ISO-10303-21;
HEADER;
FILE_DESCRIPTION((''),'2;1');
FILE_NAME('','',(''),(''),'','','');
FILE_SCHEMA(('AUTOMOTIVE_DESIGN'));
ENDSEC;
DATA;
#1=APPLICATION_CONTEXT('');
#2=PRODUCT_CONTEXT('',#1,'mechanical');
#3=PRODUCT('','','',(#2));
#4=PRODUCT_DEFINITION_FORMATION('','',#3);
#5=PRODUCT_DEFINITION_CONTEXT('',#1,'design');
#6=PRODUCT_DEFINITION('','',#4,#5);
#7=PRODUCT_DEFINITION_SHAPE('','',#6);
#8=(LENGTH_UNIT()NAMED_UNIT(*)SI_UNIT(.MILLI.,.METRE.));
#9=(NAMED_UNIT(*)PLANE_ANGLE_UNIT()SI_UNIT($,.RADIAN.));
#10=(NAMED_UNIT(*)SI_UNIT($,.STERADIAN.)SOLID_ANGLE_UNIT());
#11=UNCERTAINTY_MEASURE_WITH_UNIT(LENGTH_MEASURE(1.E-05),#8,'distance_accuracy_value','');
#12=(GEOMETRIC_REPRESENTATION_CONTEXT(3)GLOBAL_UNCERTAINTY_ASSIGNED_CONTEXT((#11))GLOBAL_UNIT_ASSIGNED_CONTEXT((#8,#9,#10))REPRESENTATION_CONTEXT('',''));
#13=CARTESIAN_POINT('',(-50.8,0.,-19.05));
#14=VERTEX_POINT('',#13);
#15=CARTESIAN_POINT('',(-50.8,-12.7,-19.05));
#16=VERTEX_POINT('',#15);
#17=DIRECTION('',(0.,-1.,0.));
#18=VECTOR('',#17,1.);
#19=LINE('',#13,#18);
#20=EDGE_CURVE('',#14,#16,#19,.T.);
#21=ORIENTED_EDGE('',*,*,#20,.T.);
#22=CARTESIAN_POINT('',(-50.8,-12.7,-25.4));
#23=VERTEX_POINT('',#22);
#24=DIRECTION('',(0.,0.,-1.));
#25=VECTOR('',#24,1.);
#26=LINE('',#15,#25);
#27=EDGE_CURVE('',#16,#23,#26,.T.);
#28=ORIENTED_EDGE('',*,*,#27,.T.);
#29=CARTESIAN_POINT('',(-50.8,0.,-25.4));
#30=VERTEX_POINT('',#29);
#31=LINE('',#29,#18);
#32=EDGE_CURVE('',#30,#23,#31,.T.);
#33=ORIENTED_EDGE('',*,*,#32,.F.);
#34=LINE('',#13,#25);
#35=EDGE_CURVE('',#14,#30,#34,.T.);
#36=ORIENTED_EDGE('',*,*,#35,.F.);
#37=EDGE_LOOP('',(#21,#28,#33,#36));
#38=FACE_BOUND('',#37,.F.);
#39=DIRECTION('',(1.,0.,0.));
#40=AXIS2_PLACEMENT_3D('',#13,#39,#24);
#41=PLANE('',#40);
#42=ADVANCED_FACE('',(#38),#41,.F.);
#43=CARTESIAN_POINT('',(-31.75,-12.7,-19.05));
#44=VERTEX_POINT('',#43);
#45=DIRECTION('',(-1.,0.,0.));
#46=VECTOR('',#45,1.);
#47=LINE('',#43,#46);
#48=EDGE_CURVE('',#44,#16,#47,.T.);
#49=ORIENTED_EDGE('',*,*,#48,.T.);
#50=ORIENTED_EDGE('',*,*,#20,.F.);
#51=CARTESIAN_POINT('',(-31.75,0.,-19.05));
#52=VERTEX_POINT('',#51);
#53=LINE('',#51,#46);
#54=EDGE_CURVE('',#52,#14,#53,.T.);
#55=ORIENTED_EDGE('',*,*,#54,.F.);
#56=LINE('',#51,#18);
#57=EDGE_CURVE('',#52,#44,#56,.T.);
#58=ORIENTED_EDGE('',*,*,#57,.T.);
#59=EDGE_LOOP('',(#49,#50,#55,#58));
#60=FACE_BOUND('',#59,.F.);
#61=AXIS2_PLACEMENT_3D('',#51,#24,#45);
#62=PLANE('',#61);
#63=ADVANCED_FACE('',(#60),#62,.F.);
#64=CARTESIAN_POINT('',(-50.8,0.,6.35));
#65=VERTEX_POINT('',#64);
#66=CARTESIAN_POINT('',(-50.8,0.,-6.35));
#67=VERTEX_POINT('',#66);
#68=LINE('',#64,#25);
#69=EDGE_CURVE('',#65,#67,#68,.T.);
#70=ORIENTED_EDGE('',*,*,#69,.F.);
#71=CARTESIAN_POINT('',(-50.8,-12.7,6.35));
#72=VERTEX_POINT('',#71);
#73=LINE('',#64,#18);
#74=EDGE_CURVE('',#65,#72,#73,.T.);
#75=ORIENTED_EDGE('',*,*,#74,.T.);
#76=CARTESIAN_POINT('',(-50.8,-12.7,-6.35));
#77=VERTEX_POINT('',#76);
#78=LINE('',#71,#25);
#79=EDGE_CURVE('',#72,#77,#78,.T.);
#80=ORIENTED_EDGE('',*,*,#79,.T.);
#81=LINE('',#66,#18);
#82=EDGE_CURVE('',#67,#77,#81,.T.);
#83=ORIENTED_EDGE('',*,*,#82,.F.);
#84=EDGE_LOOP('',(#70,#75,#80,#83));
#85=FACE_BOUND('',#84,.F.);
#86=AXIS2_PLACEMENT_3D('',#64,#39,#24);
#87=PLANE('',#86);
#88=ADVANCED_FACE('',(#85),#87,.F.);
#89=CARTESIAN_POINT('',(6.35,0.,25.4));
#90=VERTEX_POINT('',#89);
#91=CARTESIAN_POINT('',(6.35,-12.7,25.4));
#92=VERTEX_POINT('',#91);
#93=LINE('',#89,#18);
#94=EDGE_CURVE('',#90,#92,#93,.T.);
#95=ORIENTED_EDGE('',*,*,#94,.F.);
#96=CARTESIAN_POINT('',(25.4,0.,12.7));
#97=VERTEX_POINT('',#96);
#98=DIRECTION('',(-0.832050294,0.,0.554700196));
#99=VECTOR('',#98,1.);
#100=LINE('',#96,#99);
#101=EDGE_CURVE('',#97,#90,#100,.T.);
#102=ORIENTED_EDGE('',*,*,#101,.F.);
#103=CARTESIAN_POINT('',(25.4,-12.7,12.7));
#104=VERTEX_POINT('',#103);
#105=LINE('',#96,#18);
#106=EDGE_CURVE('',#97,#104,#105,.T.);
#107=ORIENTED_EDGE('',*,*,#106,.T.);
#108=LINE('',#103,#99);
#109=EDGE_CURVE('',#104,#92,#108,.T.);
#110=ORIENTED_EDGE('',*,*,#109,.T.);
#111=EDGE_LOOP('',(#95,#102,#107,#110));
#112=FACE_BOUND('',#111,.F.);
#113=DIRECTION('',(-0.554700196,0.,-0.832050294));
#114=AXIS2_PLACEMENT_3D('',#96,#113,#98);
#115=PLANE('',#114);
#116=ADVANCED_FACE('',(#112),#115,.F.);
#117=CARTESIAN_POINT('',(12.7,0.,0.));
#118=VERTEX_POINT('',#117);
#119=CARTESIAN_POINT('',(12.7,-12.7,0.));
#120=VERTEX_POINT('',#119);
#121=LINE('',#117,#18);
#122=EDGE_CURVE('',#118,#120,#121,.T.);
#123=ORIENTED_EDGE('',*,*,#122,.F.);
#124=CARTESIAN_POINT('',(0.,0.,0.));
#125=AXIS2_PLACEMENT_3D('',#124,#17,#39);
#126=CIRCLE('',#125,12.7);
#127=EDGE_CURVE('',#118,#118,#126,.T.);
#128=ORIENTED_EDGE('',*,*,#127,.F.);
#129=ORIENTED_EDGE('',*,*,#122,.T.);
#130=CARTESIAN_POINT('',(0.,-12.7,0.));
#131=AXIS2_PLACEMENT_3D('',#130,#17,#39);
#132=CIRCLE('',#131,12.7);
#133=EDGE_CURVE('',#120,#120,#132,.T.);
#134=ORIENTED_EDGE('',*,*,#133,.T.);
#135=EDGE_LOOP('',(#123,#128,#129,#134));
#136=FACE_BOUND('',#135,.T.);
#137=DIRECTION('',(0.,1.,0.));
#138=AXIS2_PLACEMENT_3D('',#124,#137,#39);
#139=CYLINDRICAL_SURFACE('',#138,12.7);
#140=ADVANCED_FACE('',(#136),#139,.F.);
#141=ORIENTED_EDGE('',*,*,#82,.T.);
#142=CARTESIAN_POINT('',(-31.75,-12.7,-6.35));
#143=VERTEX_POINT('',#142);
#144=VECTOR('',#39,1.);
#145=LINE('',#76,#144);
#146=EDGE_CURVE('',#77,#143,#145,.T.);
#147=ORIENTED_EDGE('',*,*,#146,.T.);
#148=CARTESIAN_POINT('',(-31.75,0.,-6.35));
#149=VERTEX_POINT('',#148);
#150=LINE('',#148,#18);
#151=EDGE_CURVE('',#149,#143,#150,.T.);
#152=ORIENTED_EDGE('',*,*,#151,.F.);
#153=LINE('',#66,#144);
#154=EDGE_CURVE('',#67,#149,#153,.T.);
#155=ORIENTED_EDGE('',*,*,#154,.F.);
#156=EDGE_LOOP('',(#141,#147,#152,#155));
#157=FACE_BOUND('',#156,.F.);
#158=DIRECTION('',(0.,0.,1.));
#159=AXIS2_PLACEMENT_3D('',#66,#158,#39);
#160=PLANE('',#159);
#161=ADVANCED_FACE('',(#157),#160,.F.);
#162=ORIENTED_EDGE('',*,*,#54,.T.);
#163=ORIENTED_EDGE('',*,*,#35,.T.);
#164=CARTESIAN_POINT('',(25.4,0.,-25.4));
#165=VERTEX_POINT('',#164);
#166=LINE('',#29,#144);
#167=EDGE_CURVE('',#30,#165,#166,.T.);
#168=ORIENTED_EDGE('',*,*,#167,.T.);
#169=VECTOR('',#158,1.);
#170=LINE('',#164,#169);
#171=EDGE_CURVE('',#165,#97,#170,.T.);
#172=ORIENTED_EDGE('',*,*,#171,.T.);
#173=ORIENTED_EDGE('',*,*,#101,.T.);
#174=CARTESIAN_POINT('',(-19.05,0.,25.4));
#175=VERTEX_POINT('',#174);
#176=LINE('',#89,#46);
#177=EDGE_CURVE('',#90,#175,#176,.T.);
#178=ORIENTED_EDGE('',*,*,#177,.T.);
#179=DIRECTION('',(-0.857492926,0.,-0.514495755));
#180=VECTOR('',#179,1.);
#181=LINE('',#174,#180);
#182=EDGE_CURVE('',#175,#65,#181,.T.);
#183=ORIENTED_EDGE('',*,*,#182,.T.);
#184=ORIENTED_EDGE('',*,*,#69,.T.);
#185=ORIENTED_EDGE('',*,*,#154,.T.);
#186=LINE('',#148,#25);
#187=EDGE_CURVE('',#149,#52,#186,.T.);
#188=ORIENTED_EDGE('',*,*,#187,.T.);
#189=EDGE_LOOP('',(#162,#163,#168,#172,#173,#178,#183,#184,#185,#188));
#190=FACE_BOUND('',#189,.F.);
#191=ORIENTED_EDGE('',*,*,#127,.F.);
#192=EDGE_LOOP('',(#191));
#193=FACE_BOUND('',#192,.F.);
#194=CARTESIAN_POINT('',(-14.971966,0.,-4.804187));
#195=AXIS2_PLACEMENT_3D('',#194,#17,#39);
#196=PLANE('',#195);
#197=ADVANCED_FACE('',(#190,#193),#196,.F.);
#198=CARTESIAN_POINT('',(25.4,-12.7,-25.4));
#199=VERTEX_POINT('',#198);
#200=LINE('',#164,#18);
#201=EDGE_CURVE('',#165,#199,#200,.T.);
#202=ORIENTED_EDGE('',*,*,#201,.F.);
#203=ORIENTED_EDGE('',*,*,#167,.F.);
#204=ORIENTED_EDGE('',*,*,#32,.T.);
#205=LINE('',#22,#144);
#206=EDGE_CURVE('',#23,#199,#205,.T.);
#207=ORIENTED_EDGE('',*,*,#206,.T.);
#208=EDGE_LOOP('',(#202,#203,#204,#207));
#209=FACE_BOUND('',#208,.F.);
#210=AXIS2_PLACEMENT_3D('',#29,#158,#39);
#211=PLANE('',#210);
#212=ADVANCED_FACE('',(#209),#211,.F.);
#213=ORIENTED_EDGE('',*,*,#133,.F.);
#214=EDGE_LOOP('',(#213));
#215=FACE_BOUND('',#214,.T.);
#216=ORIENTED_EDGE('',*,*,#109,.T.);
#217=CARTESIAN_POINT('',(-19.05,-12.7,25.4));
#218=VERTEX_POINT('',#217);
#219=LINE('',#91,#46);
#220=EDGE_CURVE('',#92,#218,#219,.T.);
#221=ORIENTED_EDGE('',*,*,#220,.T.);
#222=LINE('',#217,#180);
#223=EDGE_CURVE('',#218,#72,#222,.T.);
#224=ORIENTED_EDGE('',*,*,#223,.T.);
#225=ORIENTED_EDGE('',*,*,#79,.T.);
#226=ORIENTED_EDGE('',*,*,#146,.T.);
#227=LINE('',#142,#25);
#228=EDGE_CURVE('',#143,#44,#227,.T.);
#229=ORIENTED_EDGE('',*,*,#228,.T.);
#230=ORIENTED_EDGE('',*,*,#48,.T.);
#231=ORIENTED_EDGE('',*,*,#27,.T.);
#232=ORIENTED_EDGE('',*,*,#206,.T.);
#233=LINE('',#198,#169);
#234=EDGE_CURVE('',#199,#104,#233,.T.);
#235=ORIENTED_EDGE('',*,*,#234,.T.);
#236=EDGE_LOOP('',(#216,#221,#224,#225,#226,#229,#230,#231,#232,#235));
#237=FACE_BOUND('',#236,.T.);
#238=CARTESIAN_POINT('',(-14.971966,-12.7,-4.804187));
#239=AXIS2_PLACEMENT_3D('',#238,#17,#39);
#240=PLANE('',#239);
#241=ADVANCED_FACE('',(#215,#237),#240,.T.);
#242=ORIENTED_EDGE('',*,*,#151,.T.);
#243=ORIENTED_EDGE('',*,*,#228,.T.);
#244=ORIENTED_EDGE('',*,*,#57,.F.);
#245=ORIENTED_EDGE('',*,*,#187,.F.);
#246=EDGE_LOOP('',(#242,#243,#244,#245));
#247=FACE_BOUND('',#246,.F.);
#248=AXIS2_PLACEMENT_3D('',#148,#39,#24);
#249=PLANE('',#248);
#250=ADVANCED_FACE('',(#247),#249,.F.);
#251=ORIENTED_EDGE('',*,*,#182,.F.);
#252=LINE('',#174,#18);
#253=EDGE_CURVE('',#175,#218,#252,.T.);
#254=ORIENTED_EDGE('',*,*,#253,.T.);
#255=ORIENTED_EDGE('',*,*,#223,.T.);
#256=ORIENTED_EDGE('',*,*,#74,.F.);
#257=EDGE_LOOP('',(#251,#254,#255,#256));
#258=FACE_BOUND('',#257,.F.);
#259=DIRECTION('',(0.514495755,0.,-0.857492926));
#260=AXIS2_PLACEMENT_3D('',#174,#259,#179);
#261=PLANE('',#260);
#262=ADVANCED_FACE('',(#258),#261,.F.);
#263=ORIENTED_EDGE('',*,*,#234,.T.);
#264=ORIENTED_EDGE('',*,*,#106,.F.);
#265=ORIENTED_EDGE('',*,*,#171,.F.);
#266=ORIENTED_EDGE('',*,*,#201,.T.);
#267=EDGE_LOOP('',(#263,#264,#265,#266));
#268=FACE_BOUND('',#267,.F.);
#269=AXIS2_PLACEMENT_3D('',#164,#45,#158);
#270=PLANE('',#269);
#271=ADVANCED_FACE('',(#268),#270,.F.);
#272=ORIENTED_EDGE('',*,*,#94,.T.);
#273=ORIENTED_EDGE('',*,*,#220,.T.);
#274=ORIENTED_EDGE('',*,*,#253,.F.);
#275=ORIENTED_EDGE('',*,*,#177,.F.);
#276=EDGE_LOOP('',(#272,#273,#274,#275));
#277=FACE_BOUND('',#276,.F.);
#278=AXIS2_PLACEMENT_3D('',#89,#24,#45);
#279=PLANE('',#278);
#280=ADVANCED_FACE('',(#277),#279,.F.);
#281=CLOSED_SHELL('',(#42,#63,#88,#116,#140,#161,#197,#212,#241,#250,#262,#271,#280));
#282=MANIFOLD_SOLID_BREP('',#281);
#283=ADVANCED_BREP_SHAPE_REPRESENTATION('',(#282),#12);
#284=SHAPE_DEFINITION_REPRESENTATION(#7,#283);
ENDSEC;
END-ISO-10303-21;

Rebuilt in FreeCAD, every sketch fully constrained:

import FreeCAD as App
import Part
import Sketcher

V = App.Vector
Q = App.Units.Quantity

doc = App.newDocument("Part")
body = doc.addObject("PartDesign::Body", "Body")

sketch1 = body.newObject("Sketcher::SketchObject", "Sketch")
sketch1.AttachmentSupport = (doc.getObject("XZ_Plane"), [""])
sketch1.MapMode = "FlatFace"
sketch1.addGeometry([
    Part.LineSegment(V(25.4, -25.4, 0), V(25.4, 12.7, 0)),
    Part.LineSegment(V(25.4, 12.7, 0), V(6.35, 25.4, 0)),
    Part.LineSegment(V(6.35, 25.4, 0), V(-19.05, 25.4, 0)),
    Part.LineSegment(V(-19.05, 25.4, 0), V(-50.8, 6.35, 0)),
    Part.LineSegment(V(-50.8, 6.35, 0), V(-50.8, -6.35, 0)),
    Part.LineSegment(V(-50.8, -6.35, 0), V(-31.75, -6.35, 0)),
    Part.LineSegment(V(-31.75, -6.35, 0), V(-31.75, -19.05, 0)),
    Part.LineSegment(V(-31.75, -19.05, 0), V(-50.8, -19.05, 0)),
    Part.LineSegment(V(-50.8, -19.05, 0), V(-50.8, -25.4, 0)),
    Part.LineSegment(V(-50.8, -25.4, 0), V(25.4, -25.4, 0)),
    Part.Circle(V(0, 0, 0), V(0, 0, 1), 12.7),
], False)
sketch1.addConstraint([
    Sketcher.Constraint("Coincident", 0, 2, 1, 1),
    Sketcher.Constraint("Coincident", 1, 2, 2, 1),
    Sketcher.Constraint("Coincident", 2, 2, 3, 1),
    Sketcher.Constraint("Coincident", 3, 2, 4, 1),
    Sketcher.Constraint("Coincident", 4, 2, 5, 1),
    Sketcher.Constraint("Coincident", 5, 2, 6, 1),
    Sketcher.Constraint("Coincident", 6, 2, 7, 1),
    Sketcher.Constraint("Coincident", 7, 2, 8, 1),
    Sketcher.Constraint("Coincident", 8, 2, 9, 1),
    Sketcher.Constraint("Coincident", 9, 2, 0, 1),
    Sketcher.Constraint("Vertical", 0),
    Sketcher.Constraint("Horizontal", 2),
    Sketcher.Constraint("Vertical", 4),
    Sketcher.Constraint("Horizontal", 5),
    Sketcher.Constraint("Vertical", 6),
    Sketcher.Constraint("Horizontal", 7),
    Sketcher.Constraint("Vertical", 8),
    Sketcher.Constraint("Horizontal", 9),
    Sketcher.Constraint("Coincident", 10, 3, -1, 1),
    Sketcher.Constraint("Vertical", 4, 2, 7, 2),
    Sketcher.Constraint("Equal", 4, 6),
    Sketcher.Constraint("Diameter", 10, Q("1 in")),
    Sketcher.Constraint("DistanceX", 2, 2, 2, 1, Q("1 in")),
    Sketcher.Constraint("DistanceX", 9, 1, 9, 2, Q("3 in")),
    Sketcher.Constraint("DistanceY", 0, 1, 0, 2, Q("1.5 in")),
    Sketcher.Constraint("DistanceY", 4, 2, 4, 1, Q("0.5 in")),
    Sketcher.Constraint("DistanceX", -1, 1, 0, 2, Q("1 in")),
    Sketcher.Constraint("DistanceY", -1, 1, 1, 2, Q("1 in")),
    Sketcher.Constraint("DistanceY", 8, 2, -1, 1, Q("1 in")),
    Sketcher.Constraint("DistanceX", 5, 1, 5, 2, Q("0.75 in")),
    Sketcher.Constraint("DistanceY", 8, 2, 8, 1, Q("0.25 in")),
    Sketcher.Constraint("DistanceX", 5, 2, 2, 2, Q("0.5 in")),
])
pad1 = body.newObject("PartDesign::Pad", "Pad")
pad1.Profile = sketch1
pad1.Length = Q("0.5 in")

doc.recompute()
